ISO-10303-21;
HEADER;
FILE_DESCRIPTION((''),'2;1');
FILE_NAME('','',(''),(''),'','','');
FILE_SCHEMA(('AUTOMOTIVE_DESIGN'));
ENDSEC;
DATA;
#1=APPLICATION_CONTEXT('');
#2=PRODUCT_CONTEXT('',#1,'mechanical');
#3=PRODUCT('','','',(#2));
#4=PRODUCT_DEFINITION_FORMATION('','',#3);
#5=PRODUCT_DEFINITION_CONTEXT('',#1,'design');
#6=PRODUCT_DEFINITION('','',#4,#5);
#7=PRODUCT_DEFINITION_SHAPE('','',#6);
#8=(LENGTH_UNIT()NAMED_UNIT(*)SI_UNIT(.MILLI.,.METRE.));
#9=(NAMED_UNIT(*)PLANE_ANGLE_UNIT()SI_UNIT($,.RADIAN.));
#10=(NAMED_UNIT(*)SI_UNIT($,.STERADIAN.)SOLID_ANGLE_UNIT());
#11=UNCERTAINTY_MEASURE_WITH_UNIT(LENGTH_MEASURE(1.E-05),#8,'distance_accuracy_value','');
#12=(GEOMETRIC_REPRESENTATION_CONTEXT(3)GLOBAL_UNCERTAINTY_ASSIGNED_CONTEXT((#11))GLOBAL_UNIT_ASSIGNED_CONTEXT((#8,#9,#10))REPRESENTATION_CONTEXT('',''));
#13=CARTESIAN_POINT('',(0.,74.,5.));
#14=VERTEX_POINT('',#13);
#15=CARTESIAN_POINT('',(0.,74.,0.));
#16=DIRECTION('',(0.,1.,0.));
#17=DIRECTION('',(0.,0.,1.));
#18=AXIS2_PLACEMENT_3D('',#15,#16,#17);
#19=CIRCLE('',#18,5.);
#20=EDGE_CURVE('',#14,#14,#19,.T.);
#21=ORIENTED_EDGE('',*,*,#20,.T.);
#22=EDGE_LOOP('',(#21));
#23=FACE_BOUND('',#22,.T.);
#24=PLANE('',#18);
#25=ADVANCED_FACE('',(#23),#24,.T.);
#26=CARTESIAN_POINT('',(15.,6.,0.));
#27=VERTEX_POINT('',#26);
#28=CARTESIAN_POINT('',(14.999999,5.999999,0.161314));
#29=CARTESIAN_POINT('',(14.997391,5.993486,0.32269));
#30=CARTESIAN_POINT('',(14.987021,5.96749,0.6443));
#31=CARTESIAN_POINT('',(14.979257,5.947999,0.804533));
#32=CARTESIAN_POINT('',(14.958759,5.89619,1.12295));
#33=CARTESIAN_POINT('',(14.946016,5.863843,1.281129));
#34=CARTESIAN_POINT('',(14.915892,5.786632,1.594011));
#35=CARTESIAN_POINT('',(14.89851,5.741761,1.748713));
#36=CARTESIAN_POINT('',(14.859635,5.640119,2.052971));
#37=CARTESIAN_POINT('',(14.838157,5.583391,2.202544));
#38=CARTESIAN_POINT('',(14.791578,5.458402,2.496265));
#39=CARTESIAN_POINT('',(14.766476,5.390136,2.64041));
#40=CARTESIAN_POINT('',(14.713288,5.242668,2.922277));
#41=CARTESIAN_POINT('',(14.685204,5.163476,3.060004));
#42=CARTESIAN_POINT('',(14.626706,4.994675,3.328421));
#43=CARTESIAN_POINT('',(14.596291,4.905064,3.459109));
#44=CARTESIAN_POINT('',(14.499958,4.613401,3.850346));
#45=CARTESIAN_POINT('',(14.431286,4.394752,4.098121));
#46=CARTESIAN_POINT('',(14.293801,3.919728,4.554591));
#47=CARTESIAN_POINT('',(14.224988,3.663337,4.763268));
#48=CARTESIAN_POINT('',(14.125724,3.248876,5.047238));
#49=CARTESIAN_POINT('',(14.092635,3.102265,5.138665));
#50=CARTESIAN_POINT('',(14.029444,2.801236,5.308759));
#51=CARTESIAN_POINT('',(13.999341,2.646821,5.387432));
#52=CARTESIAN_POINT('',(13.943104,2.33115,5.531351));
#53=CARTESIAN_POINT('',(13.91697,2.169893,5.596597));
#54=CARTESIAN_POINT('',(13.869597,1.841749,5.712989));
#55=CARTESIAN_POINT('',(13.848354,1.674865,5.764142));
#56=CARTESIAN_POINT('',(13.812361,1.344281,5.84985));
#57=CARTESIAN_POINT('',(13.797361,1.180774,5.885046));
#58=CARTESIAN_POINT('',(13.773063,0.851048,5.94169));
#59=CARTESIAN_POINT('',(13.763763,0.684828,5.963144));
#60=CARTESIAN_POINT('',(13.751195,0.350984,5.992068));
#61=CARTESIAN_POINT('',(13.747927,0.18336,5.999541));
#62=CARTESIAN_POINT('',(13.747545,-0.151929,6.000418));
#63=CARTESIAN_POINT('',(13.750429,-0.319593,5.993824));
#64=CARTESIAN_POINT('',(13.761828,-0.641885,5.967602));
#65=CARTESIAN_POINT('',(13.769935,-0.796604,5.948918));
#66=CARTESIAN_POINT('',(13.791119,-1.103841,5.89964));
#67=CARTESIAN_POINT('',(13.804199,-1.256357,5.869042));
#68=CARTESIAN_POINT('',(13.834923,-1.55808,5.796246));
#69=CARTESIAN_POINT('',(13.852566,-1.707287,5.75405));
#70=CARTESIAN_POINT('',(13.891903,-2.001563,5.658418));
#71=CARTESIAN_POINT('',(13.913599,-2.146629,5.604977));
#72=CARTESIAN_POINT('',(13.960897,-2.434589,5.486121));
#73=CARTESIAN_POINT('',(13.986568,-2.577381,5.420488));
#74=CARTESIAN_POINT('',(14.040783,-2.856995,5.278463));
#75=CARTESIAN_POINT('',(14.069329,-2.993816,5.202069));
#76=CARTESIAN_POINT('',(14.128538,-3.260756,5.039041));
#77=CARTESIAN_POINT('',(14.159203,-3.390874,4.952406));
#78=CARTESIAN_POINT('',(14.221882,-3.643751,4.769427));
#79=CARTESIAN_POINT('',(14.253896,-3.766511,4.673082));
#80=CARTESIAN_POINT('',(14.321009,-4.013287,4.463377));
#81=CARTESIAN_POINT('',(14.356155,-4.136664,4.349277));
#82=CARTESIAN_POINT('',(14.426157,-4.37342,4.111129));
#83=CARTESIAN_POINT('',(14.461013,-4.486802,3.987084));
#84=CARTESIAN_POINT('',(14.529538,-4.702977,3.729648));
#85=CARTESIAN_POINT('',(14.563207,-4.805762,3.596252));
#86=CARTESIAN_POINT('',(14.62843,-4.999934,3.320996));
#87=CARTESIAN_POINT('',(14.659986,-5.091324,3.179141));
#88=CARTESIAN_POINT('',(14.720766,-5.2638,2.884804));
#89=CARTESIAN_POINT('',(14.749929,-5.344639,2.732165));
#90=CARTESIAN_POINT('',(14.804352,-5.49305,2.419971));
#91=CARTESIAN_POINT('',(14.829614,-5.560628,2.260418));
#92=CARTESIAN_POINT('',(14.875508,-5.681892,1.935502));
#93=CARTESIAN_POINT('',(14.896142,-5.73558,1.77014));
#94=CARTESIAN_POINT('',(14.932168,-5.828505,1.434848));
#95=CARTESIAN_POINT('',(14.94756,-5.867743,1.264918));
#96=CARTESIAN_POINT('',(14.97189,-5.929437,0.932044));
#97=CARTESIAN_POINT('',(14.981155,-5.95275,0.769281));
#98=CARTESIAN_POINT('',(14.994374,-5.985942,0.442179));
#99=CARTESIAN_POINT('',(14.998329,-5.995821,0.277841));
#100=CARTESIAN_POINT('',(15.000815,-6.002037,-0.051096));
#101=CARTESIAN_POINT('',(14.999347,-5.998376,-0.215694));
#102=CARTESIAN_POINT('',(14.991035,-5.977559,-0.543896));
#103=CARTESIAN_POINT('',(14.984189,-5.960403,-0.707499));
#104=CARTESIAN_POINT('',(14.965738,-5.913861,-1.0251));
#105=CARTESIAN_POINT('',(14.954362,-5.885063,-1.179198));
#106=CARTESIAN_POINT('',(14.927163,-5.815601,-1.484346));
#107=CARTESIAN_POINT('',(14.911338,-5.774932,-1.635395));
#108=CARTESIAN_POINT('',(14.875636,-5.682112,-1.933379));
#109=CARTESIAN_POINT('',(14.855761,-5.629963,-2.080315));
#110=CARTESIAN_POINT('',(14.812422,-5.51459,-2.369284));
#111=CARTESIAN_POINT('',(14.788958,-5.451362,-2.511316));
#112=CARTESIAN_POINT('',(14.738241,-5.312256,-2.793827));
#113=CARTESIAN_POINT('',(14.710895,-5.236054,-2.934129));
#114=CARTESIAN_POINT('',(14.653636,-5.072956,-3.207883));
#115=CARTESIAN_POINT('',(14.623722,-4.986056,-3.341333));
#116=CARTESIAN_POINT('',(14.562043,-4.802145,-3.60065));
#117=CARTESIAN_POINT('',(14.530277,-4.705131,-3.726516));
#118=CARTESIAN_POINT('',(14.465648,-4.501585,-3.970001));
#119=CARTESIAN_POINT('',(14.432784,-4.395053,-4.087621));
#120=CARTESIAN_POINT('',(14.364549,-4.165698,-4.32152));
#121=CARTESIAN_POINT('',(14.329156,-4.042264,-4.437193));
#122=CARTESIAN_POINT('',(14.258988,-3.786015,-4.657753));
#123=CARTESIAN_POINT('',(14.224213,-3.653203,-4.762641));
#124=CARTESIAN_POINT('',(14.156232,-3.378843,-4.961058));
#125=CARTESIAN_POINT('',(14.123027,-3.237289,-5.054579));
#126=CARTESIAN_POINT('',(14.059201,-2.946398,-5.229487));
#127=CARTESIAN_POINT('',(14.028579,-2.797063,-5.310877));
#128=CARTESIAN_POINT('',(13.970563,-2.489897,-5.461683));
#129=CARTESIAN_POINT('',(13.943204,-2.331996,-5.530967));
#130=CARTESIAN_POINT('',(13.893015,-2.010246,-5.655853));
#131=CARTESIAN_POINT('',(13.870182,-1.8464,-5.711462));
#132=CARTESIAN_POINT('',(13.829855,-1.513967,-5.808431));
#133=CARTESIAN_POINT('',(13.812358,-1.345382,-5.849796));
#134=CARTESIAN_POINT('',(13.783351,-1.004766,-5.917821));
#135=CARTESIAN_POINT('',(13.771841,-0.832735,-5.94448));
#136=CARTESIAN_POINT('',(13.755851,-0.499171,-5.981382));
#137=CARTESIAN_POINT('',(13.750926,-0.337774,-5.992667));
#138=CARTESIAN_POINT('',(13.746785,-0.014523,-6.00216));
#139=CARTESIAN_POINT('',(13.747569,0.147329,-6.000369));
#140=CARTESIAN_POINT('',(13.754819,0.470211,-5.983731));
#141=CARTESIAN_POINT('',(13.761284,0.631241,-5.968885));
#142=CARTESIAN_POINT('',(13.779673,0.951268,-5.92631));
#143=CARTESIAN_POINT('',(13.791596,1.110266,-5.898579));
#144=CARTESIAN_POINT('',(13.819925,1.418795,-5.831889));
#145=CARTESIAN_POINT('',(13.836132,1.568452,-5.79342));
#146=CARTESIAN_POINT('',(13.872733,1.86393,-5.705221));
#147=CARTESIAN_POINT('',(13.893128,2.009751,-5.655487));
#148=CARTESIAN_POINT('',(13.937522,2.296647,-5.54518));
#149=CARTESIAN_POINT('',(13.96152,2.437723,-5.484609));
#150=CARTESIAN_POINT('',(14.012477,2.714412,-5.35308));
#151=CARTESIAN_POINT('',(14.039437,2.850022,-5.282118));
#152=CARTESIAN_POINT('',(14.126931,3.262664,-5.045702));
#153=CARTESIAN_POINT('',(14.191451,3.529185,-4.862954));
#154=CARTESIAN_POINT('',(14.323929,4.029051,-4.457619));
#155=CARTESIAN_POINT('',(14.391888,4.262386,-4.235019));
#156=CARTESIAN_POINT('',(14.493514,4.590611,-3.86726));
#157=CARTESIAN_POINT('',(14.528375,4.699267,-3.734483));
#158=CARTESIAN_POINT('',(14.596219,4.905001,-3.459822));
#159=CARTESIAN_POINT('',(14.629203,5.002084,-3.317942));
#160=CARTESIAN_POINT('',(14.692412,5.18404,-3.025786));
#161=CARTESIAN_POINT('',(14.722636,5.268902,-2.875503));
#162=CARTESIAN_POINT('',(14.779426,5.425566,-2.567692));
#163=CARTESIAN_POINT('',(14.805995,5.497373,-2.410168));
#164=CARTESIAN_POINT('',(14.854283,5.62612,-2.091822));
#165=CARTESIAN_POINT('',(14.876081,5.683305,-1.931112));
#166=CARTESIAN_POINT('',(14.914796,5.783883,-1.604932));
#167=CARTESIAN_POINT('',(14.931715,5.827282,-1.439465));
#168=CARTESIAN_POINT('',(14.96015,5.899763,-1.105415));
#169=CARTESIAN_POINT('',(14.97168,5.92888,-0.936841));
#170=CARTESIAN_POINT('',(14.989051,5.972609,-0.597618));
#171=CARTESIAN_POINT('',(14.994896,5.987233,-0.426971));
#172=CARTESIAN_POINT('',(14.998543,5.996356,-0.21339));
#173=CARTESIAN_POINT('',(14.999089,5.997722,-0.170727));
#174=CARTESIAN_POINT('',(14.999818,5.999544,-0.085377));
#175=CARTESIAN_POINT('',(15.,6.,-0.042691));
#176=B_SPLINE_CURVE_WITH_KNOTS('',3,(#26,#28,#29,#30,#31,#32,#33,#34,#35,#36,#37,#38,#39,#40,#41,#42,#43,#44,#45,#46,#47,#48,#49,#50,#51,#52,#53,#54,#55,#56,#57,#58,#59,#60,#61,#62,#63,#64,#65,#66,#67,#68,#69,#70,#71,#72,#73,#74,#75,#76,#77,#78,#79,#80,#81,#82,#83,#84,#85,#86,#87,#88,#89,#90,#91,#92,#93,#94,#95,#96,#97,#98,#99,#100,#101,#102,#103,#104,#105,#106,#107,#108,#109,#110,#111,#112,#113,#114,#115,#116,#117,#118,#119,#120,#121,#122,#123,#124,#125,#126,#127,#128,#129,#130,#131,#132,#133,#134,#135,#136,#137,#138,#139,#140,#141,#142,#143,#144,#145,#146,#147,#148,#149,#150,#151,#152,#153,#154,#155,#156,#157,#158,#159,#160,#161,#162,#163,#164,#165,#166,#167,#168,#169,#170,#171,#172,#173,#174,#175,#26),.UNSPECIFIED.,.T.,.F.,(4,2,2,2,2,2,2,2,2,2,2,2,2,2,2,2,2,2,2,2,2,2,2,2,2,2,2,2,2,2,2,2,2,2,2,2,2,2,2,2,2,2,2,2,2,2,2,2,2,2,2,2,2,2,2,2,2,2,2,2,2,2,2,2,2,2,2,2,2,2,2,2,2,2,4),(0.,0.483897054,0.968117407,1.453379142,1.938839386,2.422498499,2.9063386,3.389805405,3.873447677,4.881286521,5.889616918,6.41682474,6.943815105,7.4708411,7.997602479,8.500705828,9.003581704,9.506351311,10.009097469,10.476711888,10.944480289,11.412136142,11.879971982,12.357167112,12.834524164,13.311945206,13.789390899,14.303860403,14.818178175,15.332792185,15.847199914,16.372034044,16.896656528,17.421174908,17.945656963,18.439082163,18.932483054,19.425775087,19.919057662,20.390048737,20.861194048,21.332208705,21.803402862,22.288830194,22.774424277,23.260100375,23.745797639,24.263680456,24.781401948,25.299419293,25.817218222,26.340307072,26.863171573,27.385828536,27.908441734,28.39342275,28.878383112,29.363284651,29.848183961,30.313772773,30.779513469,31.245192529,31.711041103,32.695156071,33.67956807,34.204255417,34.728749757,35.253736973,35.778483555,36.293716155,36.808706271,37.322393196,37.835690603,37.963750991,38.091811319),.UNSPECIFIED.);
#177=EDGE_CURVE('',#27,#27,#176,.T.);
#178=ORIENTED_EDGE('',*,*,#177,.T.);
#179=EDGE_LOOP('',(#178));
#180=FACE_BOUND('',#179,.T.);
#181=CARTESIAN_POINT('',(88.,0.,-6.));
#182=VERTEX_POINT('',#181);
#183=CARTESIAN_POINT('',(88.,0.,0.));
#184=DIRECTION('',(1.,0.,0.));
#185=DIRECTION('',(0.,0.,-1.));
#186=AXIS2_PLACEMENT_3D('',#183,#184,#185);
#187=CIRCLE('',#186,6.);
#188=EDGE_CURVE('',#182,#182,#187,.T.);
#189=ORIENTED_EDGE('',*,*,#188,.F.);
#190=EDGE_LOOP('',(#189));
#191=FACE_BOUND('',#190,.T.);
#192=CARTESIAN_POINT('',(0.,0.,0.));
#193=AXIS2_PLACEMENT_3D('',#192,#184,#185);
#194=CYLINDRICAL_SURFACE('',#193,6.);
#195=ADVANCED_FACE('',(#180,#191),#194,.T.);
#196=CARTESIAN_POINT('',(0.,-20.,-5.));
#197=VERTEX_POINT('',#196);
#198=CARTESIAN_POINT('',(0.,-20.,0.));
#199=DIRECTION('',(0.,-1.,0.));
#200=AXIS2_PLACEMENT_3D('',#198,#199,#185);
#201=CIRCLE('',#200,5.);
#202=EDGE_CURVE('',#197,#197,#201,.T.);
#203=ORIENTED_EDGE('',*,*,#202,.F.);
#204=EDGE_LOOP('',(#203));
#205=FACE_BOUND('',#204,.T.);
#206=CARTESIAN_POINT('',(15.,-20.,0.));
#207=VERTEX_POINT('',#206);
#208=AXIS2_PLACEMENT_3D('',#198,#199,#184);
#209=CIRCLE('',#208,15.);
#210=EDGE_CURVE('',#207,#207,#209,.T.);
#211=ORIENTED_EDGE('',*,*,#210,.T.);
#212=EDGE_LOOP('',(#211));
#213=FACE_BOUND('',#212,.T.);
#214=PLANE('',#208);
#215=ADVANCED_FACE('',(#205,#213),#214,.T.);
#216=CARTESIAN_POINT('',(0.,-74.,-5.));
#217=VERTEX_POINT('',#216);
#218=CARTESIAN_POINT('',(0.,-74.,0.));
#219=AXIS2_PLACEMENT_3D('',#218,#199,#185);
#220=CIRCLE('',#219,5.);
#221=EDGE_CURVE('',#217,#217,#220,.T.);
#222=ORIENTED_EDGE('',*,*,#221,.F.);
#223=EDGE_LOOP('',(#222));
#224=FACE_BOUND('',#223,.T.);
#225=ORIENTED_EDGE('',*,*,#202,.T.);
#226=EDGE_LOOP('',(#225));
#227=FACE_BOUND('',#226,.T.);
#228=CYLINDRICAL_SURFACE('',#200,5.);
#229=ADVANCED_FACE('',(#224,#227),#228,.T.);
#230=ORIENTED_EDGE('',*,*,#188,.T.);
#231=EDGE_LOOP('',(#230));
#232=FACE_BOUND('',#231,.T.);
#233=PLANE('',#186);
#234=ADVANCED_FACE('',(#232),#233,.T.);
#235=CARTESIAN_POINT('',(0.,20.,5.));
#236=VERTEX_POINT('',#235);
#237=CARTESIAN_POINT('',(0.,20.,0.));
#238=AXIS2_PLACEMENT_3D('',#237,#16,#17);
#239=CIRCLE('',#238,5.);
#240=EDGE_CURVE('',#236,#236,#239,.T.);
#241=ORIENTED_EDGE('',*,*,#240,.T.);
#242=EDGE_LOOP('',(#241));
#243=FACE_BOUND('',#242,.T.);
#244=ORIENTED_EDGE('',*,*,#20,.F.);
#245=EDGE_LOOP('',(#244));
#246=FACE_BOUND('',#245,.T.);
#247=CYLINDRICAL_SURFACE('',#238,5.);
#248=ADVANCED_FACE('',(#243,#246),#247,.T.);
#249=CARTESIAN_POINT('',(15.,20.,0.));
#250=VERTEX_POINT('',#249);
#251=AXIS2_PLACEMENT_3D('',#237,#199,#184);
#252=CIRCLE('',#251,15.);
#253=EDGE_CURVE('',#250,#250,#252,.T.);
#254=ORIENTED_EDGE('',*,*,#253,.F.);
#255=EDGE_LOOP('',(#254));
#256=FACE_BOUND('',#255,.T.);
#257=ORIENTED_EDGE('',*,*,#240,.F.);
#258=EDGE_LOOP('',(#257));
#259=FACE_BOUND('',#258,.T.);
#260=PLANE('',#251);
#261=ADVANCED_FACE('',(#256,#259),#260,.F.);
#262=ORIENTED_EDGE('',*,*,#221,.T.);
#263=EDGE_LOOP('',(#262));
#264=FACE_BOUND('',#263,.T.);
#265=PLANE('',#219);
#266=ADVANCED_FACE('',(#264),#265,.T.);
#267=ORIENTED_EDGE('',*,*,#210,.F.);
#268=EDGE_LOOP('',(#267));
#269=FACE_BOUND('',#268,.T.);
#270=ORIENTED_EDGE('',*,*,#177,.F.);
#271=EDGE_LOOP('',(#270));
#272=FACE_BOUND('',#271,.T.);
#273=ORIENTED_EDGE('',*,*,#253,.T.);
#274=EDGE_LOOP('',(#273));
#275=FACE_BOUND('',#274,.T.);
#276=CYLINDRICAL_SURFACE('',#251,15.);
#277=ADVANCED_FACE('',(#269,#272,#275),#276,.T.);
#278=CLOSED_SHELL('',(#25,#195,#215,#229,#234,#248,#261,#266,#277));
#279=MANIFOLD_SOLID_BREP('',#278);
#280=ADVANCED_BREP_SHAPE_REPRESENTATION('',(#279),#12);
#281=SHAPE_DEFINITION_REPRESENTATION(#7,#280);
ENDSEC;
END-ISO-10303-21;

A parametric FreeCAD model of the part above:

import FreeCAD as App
import Part
import Sketcher

V = App.Vector

doc = App.newDocument("Part")
params = doc.addObject("Spreadsheet::Sheet", "Params")
for row, (alias, value) in enumerate([
    ("sketch1_diameter", "30 mm"),
    ("sketch2_height", "40 mm"),
    ("sketch3_diameter", "12 mm"),
    ("sketch4_width", "88 mm"),
    ("sketch5_diameter", "10 mm"),
    ("sketch6_height", "54 mm"),
    ("sketch7_diameter", "10 mm"),
    ("sketch8_height", "54 mm"),
], start=1):
    params.set(f"A{row}", alias)
    params.set(f"B{row}", "=" + value)
    params.setAlias(f"B{row}", alias)

body = doc.addObject("PartDesign::Body", "Body")

sketch1 = body.newObject("Sketcher::SketchObject", "Sketch")
sketch1.AttachmentSupport = (doc.getObject("XZ_Plane"), [""])
sketch1.MapMode = "FlatFace"
sketch1.AttachmentOffset = App.Placement(V(0, 0, -20), App.Rotation())
sketch1.addGeometry(Part.Circle(V(0, 0, 0), V(0, 0, 1), 15), False)
sketch1.addConstraint(Sketcher.Constraint("Coincident", 0, 3, -1, 1))
sketch1.addConstraint(Sketcher.Constraint("Diameter", 0, 30.0))
sketch1.setExpression("Constraints[1]", "Params.sketch1_diameter")

sketch2 = body.newObject("Sketcher::SketchObject", "Sketch001")
sketch2.AttachmentSupport = (doc.getObject("XY_Plane"), [""])
sketch2.MapMode = "FlatFace"
sketch2.addGeometry(Part.LineSegment(V(0, 20, 0), V(0, -20, 0)), False)
sketch2.addConstraint(Sketcher.Constraint("Vertical", 0))
sketch2.addConstraint(Sketcher.Constraint("Symmetric", 0, 1, 0, 2, -1, 1))
sketch2.addConstraint(Sketcher.Constraint("DistanceY", 0, 2, 0, 1, 40.0))
sketch2.setExpression("Constraints[2]", "Params.sketch2_height")
doc.recompute()

additivepipe = body.newObject("PartDesign::AdditivePipe", "AdditivePipe")
additivepipe.Profile = sketch1
additivepipe.Spine = (sketch2, ["Edge1"])

sketch3 = body.newObject("Sketcher::SketchObject", "Sketch002")
sketch3.AttachmentSupport = (doc.getObject("YZ_Plane"), [""])
sketch3.MapMode = "FlatFace"
sketch3.addGeometry(Part.Circle(V(0, 0, 0), V(0, 0, 1), 6), False)
sketch3.addConstraint(Sketcher.Constraint("Coincident", 0, 3, -1, 1))
sketch3.addConstraint(Sketcher.Constraint("Diameter", 0, 12.0))
sketch3.setExpression("Constraints[1]", "Params.sketch3_diameter")

sketch4 = body.newObject("Sketcher::SketchObject", "Sketch003")
sketch4.AttachmentSupport = (doc.getObject("XY_Plane"), [""])
sketch4.MapMode = "FlatFace"
sketch4.addGeometry(Part.LineSegment(V(0, 0, 0), V(88, 0, 0)), False)
sketch4.addConstraint(Sketcher.Constraint("Horizontal", 0))
sketch4.addConstraint(Sketcher.Constraint("Coincident", 0, 1, -1, 1))
sketch4.addConstraint(Sketcher.Constraint("DistanceX", 0, 1, 0, 2, 88.0))
sketch4.setExpression("Constraints[2]", "Params.sketch4_width")
doc.recompute()

additivepipe2 = body.newObject("PartDesign::AdditivePipe", "AdditivePipe001")
additivepipe2.Profile = sketch3
additivepipe2.Spine = (sketch4, ["Edge1"])

sketch5 = body.newObject("Sketcher::SketchObject", "Sketch004")
sketch5.AttachmentSupport = (doc.getObject("XZ_Plane"), [""])
sketch5.MapMode = "FlatFace"
sketch5.AttachmentOffset = App.Placement(V(0, 0, 20), App.Rotation())
sketch5.addGeometry(Part.Circle(V(0, 0, 0), V(0, 0, 1), 5), False)
sketch5.addConstraint(Sketcher.Constraint("Coincident", 0, 3, -1, 1))
sketch5.addConstraint(Sketcher.Constraint("Diameter", 0, 10.0))
sketch5.setExpression("Constraints[1]", "Params.sketch5_diameter")

sketch6 = body.newObject("Sketcher::SketchObject", "Sketch005")
sketch6.AttachmentSupport = (doc.getObject("XY_Plane"), [""])
sketch6.MapMode = "FlatFace"
sketch6.addGeometry(Part.LineSegment(V(0, -20, 0), V(0, -74, 0)), False)
sketch6.addConstraint(Sketcher.Constraint("Vertical", 0))
sketch6.addConstraint(Sketcher.Constraint("PointOnObject", 0, 1, -2))
sketch6.addConstraint(Sketcher.Constraint("DistanceY", 0, 2, 0, 1, 54.0))
sketch6.addConstraint(Sketcher.Constraint("DistanceY", 0, 1, -1, 1, 20.0))
sketch6.setExpression("Constraints[2]", "Params.sketch6_height")
doc.recompute()

additivepipe3 = body.newObject("PartDesign::AdditivePipe", "AdditivePipe002")
additivepipe3.Profile = sketch5
additivepipe3.Spine = (sketch6, ["Edge1"])

sketch7 = body.newObject("Sketcher::SketchObject", "Sketch006")
sketch7.AttachmentSupport = (doc.getObject("XZ_Plane"), [""])
sketch7.MapMode = "FlatFace"
sketch7.AttachmentOffset = App.Placement(V(0, 0, -20), App.Rotation())
sketch7.addGeometry(Part.Circle(V(0, 0, 0), V(0, 0, 1), 5), False)
sketch7.addConstraint(Sketcher.Constraint("Coincident", 0, 3, -1, 1))
sketch7.addConstraint(Sketcher.Constraint("Diameter", 0, 10.0))
sketch7.setExpression("Constraints[1]", "Params.sketch7_diameter")

sketch8 = body.newObject("Sketcher::SketchObject", "Sketch007")
sketch8.AttachmentSupport = (doc.getObject("XY_Plane"), [""])
sketch8.MapMode = "FlatFace"
sketch8.addGeometry(Part.LineSegment(V(0, 20, 0), V(0, 74, 0)), False)
sketch8.addConstraint(Sketcher.Constraint("Vertical", 0))
sketch8.addConstraint(Sketcher.Constraint("PointOnObject", 0, 1, -2))
sketch8.addConstraint(Sketcher.Constraint("DistanceY", 0, 1, 0, 2, 54.0))
sketch8.addConstraint(Sketcher.Constraint("DistanceY", -1, 1, 0, 1, 20.0))
sketch8.setExpression("Constraints[2]", "Params.sketch8_height")
doc.recompute()

additivepipe4 = body.newObject("PartDesign::AdditivePipe", "AdditivePipe003")
additivepipe4.Profile = sketch7
additivepipe4.Spine = (sketch8, ["Edge1"])

doc.recompute()
